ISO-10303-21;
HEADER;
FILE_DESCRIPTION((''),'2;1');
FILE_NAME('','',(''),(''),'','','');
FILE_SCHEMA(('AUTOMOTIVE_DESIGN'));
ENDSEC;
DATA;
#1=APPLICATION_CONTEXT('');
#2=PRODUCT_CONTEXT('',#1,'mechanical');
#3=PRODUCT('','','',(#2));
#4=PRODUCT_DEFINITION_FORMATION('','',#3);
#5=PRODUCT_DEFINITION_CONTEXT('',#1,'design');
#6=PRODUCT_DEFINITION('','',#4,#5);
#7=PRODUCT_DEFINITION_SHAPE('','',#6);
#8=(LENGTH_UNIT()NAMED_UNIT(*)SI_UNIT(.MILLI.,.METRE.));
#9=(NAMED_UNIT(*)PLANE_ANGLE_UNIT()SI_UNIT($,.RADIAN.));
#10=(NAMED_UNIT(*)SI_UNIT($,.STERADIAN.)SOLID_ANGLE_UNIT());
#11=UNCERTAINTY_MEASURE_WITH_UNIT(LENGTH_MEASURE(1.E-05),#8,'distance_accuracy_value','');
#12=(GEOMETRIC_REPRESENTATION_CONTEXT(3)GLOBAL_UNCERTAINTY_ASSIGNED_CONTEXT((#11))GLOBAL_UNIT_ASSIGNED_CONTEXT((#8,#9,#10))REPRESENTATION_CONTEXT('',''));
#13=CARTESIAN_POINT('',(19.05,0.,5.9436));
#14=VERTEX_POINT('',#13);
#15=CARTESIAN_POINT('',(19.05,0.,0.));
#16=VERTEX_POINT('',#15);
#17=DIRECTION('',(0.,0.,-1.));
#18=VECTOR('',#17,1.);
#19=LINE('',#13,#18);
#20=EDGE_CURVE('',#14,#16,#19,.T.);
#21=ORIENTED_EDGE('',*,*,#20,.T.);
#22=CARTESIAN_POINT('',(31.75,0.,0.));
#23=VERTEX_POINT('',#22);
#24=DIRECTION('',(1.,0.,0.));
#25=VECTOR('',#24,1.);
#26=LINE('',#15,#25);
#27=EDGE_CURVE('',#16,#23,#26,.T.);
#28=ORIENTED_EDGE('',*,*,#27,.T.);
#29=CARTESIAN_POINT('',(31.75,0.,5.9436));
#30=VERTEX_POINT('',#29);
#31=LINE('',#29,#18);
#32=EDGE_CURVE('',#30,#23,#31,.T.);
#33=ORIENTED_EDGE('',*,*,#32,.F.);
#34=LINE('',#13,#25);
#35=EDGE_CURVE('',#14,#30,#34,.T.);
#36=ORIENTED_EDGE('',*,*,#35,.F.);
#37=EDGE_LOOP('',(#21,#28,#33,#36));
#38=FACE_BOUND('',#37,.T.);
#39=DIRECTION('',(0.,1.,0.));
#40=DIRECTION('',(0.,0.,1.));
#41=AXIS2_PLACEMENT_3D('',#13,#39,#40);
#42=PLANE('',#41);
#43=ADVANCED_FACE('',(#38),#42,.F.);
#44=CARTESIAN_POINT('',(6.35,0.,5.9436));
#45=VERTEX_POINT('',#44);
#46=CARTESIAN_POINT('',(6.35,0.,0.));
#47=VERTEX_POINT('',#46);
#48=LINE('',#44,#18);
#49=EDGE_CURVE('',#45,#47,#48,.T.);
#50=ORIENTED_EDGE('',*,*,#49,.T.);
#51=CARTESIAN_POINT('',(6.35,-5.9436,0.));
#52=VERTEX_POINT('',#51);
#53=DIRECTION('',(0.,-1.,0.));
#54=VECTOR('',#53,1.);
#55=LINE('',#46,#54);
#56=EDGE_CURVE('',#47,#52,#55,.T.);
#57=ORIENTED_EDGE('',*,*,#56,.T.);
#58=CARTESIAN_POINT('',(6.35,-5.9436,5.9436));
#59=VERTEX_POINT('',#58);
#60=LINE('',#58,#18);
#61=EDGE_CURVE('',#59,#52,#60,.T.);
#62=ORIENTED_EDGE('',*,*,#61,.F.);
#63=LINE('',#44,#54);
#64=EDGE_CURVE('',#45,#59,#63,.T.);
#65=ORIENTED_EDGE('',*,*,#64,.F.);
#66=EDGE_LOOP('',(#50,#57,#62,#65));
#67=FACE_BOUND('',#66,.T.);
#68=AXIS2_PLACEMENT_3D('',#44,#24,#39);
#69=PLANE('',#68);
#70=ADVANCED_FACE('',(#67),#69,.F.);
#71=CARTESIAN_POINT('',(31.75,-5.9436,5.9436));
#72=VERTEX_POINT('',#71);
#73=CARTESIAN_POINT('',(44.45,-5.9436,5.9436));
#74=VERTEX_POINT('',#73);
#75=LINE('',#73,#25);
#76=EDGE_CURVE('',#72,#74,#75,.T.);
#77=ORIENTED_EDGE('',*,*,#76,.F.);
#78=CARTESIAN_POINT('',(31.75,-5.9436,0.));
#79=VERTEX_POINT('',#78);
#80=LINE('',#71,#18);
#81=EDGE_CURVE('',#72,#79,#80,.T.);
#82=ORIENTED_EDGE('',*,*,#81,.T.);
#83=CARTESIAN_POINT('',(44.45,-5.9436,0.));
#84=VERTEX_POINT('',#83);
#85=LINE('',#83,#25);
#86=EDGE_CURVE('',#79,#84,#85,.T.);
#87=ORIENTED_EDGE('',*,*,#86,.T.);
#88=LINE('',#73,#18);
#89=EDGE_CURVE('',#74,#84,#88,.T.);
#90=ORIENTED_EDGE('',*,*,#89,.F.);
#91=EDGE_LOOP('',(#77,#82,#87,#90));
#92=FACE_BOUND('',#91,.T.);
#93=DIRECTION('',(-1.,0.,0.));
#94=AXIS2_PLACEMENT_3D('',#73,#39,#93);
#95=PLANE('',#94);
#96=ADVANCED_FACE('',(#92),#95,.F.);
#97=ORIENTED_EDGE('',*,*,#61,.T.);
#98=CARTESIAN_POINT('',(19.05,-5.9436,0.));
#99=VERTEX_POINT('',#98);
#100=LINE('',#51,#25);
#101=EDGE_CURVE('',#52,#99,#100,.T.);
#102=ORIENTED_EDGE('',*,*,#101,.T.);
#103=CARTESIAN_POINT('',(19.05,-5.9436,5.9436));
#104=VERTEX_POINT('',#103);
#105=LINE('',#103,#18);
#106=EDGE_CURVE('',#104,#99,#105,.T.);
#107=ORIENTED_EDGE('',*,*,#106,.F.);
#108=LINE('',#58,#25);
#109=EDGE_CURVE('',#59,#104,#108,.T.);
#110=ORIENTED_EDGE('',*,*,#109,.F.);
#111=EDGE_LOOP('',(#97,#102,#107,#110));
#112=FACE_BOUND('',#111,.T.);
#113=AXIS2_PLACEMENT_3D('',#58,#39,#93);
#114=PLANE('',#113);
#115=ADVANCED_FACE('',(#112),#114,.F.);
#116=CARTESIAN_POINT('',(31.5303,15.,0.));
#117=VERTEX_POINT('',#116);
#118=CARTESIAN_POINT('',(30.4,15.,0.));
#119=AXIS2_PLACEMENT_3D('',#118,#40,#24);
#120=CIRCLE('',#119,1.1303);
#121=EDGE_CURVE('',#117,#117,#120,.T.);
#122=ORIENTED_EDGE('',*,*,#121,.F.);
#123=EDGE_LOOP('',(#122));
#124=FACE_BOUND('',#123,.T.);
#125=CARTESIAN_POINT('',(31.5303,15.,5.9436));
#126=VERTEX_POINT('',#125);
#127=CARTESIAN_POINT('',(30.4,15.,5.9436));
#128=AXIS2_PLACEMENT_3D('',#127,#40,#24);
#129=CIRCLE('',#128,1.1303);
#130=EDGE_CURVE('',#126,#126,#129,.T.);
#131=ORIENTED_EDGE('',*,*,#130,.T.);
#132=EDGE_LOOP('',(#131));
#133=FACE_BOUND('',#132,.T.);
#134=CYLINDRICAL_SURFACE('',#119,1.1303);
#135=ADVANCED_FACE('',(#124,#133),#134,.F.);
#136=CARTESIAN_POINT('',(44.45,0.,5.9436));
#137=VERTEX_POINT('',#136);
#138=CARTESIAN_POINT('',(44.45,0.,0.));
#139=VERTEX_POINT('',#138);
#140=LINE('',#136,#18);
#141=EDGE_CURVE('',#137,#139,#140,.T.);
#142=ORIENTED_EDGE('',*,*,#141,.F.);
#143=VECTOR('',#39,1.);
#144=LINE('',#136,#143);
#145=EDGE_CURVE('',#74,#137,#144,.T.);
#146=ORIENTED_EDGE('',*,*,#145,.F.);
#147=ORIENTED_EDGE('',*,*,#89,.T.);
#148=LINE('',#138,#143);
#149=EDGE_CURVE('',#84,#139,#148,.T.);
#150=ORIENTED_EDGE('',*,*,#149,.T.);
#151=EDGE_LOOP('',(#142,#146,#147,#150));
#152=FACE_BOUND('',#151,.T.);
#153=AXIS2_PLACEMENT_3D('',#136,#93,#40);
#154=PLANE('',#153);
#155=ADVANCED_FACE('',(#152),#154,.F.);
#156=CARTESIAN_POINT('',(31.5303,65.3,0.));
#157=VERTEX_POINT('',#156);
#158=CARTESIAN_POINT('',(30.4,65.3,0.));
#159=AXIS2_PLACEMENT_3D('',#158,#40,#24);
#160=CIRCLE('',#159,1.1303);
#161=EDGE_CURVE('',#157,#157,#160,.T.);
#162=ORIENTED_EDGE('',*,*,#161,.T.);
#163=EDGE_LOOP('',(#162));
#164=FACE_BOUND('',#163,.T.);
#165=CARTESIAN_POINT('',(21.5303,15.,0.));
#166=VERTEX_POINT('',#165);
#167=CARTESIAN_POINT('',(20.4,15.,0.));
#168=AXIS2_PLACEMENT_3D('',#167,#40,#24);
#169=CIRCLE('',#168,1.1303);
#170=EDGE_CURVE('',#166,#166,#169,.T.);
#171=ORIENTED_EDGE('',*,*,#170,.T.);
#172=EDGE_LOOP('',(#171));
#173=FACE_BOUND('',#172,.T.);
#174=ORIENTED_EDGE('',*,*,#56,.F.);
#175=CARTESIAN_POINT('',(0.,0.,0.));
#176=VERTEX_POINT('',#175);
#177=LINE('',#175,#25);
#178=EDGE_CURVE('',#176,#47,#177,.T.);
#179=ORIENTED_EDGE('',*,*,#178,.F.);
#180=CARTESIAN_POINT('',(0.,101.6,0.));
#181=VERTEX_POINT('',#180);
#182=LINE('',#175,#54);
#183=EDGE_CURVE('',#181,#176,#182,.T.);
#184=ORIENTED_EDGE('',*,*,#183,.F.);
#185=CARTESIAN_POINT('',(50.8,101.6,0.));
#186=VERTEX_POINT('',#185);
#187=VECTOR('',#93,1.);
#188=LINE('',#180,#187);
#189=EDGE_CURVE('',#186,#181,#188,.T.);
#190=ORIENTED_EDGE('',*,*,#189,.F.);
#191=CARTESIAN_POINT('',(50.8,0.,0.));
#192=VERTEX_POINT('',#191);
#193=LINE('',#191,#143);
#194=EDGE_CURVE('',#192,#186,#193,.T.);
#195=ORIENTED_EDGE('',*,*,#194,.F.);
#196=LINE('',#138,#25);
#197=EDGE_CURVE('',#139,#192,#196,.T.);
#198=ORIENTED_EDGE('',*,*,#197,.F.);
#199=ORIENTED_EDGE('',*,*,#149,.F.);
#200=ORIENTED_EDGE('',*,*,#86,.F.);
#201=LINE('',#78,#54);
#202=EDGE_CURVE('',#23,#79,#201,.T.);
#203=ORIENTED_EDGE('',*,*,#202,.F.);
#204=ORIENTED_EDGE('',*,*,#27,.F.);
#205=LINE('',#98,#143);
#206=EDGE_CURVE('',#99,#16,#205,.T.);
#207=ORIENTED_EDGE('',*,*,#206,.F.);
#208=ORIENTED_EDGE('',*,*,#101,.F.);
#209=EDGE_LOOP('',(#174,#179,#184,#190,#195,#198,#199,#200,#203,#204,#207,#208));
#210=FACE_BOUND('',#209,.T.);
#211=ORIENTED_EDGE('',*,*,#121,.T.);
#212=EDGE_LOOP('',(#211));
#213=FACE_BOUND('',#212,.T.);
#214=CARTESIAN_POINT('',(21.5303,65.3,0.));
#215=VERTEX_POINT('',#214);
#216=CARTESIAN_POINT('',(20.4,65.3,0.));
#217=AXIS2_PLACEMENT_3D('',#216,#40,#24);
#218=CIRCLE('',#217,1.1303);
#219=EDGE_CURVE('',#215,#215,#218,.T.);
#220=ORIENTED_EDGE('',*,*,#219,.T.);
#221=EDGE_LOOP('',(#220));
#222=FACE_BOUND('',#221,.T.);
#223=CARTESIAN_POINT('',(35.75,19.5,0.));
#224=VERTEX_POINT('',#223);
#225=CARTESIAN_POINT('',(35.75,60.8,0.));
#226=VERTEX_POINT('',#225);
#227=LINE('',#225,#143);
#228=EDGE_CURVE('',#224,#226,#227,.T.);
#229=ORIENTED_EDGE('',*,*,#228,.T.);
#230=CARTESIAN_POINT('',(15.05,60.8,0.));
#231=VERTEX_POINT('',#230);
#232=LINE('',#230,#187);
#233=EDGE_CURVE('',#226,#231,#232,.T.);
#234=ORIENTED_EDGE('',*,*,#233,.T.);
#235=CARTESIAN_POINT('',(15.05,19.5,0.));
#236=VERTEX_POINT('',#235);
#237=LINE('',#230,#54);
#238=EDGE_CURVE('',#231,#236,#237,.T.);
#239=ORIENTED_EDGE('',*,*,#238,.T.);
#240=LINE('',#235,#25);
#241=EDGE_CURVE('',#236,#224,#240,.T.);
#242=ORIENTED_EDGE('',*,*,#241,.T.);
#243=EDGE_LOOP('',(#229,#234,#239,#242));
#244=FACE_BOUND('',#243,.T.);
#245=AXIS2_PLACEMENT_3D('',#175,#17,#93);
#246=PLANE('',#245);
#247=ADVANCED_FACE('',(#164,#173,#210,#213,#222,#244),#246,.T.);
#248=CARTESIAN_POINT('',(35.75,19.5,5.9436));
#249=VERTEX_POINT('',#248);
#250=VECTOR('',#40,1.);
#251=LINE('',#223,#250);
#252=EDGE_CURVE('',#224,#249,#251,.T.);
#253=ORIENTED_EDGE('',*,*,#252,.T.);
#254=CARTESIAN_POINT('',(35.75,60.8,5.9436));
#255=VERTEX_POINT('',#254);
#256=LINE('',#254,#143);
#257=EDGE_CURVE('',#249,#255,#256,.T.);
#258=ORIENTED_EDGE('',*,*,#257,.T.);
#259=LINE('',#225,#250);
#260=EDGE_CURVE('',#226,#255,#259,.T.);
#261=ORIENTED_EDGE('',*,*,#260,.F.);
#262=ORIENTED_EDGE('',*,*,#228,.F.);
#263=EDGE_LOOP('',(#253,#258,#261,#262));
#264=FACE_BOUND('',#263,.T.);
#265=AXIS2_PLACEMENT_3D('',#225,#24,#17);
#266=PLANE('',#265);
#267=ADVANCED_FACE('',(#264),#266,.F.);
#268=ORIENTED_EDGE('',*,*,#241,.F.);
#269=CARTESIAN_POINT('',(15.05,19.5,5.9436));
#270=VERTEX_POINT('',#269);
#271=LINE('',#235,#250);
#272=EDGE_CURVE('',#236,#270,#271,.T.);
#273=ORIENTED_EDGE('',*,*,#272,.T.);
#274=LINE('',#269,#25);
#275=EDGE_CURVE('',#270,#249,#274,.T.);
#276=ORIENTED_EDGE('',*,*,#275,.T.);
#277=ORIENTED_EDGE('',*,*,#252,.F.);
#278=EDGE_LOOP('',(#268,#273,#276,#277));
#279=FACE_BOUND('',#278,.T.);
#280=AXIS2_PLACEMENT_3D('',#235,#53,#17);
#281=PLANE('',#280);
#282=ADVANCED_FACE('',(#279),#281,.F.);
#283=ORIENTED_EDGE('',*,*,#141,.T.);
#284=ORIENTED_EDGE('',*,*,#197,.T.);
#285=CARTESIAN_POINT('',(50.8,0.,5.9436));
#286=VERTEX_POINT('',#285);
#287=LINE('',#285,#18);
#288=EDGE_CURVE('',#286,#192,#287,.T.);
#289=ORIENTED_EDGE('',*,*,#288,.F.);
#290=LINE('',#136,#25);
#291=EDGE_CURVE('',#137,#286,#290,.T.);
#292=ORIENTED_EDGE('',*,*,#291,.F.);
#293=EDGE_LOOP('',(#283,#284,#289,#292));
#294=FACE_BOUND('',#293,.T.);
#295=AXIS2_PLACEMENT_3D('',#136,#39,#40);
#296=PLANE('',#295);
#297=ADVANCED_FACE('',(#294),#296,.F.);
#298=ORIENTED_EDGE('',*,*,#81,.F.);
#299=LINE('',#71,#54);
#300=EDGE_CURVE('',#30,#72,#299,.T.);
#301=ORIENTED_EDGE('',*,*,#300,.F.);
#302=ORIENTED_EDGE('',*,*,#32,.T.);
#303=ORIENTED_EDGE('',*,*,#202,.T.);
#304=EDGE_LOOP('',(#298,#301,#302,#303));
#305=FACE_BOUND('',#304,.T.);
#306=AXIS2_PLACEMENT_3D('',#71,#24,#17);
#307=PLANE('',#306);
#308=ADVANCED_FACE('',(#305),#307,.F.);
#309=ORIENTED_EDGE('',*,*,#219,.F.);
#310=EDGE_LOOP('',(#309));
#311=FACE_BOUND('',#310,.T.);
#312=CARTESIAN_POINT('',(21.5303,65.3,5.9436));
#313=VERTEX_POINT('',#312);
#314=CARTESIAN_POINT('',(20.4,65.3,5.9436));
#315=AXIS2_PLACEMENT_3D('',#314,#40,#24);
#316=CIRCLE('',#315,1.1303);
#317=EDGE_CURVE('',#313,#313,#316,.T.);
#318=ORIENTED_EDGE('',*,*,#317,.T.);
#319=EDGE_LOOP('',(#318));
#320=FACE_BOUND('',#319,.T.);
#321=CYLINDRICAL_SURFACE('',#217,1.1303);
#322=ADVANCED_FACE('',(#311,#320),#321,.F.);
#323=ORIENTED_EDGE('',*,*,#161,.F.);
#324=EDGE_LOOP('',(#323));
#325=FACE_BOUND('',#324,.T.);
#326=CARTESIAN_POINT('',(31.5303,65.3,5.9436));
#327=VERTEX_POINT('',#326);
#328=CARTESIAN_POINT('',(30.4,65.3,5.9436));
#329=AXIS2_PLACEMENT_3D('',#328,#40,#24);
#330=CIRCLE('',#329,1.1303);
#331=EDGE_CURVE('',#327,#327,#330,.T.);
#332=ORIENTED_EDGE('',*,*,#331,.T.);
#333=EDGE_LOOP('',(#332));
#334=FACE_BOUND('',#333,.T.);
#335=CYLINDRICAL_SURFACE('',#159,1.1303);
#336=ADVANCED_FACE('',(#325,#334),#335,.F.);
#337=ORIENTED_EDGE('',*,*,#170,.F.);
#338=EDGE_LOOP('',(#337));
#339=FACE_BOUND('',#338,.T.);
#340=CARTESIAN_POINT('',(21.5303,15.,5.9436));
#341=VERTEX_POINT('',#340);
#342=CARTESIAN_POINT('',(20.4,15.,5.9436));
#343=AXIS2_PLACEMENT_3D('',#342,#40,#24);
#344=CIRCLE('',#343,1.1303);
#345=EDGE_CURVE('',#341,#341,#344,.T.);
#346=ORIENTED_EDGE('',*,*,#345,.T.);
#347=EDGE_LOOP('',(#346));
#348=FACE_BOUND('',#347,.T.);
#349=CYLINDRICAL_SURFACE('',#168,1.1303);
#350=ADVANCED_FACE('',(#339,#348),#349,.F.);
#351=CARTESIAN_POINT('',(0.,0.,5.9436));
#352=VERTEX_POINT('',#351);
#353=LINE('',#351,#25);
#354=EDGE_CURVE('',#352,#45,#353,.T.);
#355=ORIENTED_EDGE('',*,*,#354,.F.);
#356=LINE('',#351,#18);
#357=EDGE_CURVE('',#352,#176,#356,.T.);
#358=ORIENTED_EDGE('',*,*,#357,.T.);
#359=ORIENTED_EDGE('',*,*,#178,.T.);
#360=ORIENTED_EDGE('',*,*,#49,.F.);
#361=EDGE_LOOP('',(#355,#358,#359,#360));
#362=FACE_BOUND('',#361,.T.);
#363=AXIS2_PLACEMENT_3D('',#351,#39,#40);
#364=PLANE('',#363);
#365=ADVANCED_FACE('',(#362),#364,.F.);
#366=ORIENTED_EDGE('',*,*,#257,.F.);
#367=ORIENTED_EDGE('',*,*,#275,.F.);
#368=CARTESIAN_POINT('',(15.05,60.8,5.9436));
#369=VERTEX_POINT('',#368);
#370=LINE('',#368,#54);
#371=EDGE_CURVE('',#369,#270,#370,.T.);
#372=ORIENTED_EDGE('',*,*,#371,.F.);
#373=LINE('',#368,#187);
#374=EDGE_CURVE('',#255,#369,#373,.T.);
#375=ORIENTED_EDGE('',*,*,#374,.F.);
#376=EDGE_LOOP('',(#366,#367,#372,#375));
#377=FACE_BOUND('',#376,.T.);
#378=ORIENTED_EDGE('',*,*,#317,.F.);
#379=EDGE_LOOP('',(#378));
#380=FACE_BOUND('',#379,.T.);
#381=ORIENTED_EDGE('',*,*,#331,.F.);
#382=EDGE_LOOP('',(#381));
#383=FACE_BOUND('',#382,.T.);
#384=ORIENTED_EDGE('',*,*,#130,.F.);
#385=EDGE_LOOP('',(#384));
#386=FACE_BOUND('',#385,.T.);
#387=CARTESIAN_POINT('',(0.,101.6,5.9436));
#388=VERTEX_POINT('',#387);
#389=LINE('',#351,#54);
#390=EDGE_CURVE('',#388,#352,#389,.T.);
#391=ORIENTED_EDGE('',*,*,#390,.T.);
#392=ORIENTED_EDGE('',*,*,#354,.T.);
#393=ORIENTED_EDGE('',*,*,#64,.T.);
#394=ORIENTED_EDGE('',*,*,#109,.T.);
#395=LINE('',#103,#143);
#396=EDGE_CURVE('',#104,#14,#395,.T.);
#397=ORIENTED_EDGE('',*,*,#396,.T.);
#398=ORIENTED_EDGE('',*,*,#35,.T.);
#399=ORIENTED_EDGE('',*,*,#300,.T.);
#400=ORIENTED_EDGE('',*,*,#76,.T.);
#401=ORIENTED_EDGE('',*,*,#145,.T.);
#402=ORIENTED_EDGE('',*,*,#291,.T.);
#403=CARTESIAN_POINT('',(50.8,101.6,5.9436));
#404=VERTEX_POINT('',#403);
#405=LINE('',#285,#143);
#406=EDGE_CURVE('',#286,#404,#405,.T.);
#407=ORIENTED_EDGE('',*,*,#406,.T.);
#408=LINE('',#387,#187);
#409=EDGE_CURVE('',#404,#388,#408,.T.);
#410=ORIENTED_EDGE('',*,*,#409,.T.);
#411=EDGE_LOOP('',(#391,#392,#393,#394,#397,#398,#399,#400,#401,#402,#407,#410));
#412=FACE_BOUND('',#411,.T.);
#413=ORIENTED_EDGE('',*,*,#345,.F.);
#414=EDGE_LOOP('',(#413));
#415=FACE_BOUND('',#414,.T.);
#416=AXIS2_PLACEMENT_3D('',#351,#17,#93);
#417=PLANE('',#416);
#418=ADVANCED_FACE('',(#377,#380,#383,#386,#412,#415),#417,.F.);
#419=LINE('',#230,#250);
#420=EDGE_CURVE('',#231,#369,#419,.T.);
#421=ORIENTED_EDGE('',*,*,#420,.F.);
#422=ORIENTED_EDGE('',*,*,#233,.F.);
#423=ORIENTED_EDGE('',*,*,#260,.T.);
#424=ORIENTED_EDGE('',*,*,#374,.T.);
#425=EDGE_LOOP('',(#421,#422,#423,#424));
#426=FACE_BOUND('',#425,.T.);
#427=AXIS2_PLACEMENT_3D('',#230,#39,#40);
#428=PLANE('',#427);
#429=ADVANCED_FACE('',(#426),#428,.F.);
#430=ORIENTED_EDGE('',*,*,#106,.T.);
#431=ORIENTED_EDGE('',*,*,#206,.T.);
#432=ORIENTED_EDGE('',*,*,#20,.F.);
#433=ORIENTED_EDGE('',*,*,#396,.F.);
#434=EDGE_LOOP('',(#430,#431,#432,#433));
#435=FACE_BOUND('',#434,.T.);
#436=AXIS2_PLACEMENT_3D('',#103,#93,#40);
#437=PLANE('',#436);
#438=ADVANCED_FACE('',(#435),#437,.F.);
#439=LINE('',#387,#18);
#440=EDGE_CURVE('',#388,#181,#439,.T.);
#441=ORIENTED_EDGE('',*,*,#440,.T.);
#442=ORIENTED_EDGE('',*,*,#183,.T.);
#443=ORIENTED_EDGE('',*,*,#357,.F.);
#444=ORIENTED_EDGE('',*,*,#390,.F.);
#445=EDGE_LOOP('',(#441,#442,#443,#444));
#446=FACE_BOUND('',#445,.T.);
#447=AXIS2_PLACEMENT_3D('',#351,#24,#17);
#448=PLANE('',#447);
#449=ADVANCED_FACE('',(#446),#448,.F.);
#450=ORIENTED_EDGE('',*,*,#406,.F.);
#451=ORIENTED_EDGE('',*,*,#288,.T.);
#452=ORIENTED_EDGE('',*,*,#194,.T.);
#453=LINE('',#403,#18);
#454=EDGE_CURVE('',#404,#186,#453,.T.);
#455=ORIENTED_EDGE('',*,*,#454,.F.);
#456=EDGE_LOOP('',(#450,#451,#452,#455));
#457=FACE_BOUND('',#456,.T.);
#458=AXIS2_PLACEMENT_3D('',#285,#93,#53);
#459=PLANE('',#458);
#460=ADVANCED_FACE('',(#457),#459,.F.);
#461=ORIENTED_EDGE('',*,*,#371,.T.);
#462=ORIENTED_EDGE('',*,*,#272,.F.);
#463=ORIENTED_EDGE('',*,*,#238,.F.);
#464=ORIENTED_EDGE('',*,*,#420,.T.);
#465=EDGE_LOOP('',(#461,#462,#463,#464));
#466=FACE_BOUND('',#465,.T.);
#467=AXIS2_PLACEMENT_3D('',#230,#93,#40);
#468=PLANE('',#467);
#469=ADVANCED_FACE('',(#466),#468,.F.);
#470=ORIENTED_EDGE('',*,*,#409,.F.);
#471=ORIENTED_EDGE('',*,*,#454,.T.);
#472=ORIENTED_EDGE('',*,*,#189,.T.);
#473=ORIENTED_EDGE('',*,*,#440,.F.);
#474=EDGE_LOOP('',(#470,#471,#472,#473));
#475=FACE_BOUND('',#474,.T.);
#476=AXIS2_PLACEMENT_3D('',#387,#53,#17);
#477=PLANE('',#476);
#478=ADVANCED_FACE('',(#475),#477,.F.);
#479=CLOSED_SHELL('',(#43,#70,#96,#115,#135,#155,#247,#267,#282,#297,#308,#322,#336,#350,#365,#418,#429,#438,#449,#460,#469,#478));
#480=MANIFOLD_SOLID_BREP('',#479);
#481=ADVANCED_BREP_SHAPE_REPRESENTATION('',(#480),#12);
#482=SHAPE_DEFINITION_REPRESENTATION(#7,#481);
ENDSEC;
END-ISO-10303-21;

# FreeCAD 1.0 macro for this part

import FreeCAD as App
import Part
import Sketcher

V = App.Vector
Q = App.Units.Quantity


def add_polygon(sketch, points):
    """Adds a closed chain of lines whose ends are joined by coincident constraints."""
    first, n = sketch.GeometryCount, len(points)
    for a, b in zip(points, points[1:] + points[:1]):
        sketch.addGeometry(Part.LineSegment(App.Vector(*a, 0), App.Vector(*b, 0)), False)
    for i in range(n):
        sketch.addConstraint(Sketcher.Constraint("Coincident", first + i, 2, first + (i + 1) % n, 1))

doc = App.newDocument("Part")
body = doc.addObject("PartDesign::Body", "Body")

# Sketch on XY plane
sketch1 = body.newObject("Sketcher::SketchObject", "Sketch")
sketch1.AttachmentSupport = (doc.getObject("XY_Plane"), [""])
sketch1.MapMode = "FlatFace"
add_polygon(sketch1, [(6.35, 0), (6.35, -5.9436), (19.05, -5.9436), (19.05, 0), (31.75, 0), (31.75, -5.9436), (44.45, -5.9436), (44.45, 0), (50.8, 0), (50.8, 101.6), (0, 101.6), (0, 0)])  # lines 0-11
sketch1.addConstraint(Sketcher.Constraint("Vertical", 0))
sketch1.addConstraint(Sketcher.Constraint("Horizontal", 1))
sketch1.addConstraint(Sketcher.Constraint("Vertical", 2))
sketch1.addConstraint(Sketcher.Constraint("Horizontal", 3))
sketch1.addConstraint(Sketcher.Constraint("Vertical", 4))
sketch1.addConstraint(Sketcher.Constraint("Horizontal", 5))
sketch1.addConstraint(Sketcher.Constraint("Vertical", 6))
sketch1.addConstraint(Sketcher.Constraint("Horizontal", 7))
sketch1.addConstraint(Sketcher.Constraint("Vertical", 8))
sketch1.addConstraint(Sketcher.Constraint("Horizontal", 9))
sketch1.addConstraint(Sketcher.Constraint("Vertical", 10))
sketch1.addConstraint(Sketcher.Constraint("Horizontal", 11))
sketch1.addConstraint(Sketcher.Constraint("Coincident", 10, 2, -1, 1))
sketch1.addConstraint(Sketcher.Constraint("PointOnObject", 2, 2, -1))
sketch1.addConstraint(Sketcher.Constraint("PointOnObject", 6, 2, -1))
sketch1.addConstraint(Sketcher.Constraint("Horizontal", 1, 2, 4, 2))
sketch1.addConstraint(Sketcher.Constraint("Equal", 1, 3))
sketch1.addConstraint(Sketcher.Constraint("Equal", 3, 5))
sketch1.addConstraint(Sketcher.Constraint("Equal", 7, 11))
sketch1.addConstraint(Sketcher.Constraint("DistanceX", 9, 2, 9, 1, Q("2 in")))
sketch1.addConstraint(Sketcher.Constraint("DistanceY", 8, 1, 8, 2, Q("4 in")))
sketch1.addConstraint(Sketcher.Constraint("DistanceX", 1, 1, 1, 2, Q("0.5 in")))
sketch1.addConstraint(Sketcher.Constraint("DistanceY", 0, 2, 0, 1, Q("0.234 in")))
pad1 = body.newObject("PartDesign::Pad", "Pad")
pad1.Profile = sketch1
pad1.Length = Q("0.234 in")

# Sketch on XY plane
sketch2 = body.newObject("Sketcher::SketchObject", "Sketch001")
sketch2.AttachmentSupport = (doc.getObject("XY_Plane"), [""])
sketch2.MapMode = "FlatFace"
sketch2.AttachmentOffset = App.Placement(V(0, 0, 0.234 * 25.4), App.Rotation())
sketch2.addGeometry(Part.Circle(V(20.4, 65.3, 0), V(0, 0, 1), 1.1303), False)  # 0
sketch2.addGeometry(Part.Circle(V(30.4, 65.3, 0), V(0, 0, 1), 1.1303), False)  # 1
sketch2.addGeometry(Part.Circle(V(20.4, 15, 0), V(0, 0, 1), 1.1303), False)  # 2
sketch2.addGeometry(Part.Circle(V(30.4, 15, 0), V(0, 0, 1), 1.1303), False)  # 3
add_polygon(sketch2, [(15.05, 60.8), (15.05, 19.5), (35.75, 19.5), (35.75, 60.8)])  # lines 4-7
sketch2.addConstraint(Sketcher.Constraint("Vertical", 4))
sketch2.addConstraint(Sketcher.Constraint("Horizontal", 5))
sketch2.addConstraint(Sketcher.Constraint("Vertical", 6))
sketch2.addConstraint(Sketcher.Constraint("Horizontal", 7))
sketch2.addConstraint(Sketcher.Constraint("Equal", 0, 1))
sketch2.addConstraint(Sketcher.Constraint("Equal", 1, 2))
sketch2.addConstraint(Sketcher.Constraint("Equal", 2, 3))
sketch2.addConstraint(Sketcher.Constraint("Horizontal", 0, 3, 1, 3))
sketch2.addConstraint(Sketcher.Constraint("Horizontal", 2, 3, 3, 3))
sketch2.addConstraint(Sketcher.Constraint("Vertical", 0, 3, 2, 3))
sketch2.addConstraint(Sketcher.Constraint("Vertical", 1, 3, 3, 3))
sketch2.addConstraint(Sketcher.Constraint("Diameter", 0, Q("0.089 in")))
sketch2.addConstraint(Sketcher.Constraint("DistanceX", 5, 1, 5, 2, Q("20.7 mm")))
sketch2.addConstraint(Sketcher.Constraint("DistanceY", 4, 2, 4, 1, Q("41.3 mm")))
sketch2.addConstraint(Sketcher.Constraint("DistanceX", -1, 1, 0, 3, Q("20.4 mm")))
sketch2.addConstraint(Sketcher.Constraint("DistanceY", -1, 1, 0, 3, Q("65.3 mm")))
sketch2.addConstraint(Sketcher.Constraint("DistanceX", -1, 1, 1, 3, Q("30.4 mm")))
sketch2.addConstraint(Sketcher.Constraint("DistanceY", -1, 1, 2, 3, Q("15 mm")))
sketch2.addConstraint(Sketcher.Constraint("DistanceX", -1, 1, 4, 2, Q("15.05 mm")))
sketch2.addConstraint(Sketcher.Constraint("DistanceY", -1, 1, 4, 2, Q("19.5 mm")))
pocket1 = body.newObject("PartDesign::Pocket", "Pocket")
pocket1.Profile = sketch2
pocket1.Type = "ThroughAll"

doc.recompute()
